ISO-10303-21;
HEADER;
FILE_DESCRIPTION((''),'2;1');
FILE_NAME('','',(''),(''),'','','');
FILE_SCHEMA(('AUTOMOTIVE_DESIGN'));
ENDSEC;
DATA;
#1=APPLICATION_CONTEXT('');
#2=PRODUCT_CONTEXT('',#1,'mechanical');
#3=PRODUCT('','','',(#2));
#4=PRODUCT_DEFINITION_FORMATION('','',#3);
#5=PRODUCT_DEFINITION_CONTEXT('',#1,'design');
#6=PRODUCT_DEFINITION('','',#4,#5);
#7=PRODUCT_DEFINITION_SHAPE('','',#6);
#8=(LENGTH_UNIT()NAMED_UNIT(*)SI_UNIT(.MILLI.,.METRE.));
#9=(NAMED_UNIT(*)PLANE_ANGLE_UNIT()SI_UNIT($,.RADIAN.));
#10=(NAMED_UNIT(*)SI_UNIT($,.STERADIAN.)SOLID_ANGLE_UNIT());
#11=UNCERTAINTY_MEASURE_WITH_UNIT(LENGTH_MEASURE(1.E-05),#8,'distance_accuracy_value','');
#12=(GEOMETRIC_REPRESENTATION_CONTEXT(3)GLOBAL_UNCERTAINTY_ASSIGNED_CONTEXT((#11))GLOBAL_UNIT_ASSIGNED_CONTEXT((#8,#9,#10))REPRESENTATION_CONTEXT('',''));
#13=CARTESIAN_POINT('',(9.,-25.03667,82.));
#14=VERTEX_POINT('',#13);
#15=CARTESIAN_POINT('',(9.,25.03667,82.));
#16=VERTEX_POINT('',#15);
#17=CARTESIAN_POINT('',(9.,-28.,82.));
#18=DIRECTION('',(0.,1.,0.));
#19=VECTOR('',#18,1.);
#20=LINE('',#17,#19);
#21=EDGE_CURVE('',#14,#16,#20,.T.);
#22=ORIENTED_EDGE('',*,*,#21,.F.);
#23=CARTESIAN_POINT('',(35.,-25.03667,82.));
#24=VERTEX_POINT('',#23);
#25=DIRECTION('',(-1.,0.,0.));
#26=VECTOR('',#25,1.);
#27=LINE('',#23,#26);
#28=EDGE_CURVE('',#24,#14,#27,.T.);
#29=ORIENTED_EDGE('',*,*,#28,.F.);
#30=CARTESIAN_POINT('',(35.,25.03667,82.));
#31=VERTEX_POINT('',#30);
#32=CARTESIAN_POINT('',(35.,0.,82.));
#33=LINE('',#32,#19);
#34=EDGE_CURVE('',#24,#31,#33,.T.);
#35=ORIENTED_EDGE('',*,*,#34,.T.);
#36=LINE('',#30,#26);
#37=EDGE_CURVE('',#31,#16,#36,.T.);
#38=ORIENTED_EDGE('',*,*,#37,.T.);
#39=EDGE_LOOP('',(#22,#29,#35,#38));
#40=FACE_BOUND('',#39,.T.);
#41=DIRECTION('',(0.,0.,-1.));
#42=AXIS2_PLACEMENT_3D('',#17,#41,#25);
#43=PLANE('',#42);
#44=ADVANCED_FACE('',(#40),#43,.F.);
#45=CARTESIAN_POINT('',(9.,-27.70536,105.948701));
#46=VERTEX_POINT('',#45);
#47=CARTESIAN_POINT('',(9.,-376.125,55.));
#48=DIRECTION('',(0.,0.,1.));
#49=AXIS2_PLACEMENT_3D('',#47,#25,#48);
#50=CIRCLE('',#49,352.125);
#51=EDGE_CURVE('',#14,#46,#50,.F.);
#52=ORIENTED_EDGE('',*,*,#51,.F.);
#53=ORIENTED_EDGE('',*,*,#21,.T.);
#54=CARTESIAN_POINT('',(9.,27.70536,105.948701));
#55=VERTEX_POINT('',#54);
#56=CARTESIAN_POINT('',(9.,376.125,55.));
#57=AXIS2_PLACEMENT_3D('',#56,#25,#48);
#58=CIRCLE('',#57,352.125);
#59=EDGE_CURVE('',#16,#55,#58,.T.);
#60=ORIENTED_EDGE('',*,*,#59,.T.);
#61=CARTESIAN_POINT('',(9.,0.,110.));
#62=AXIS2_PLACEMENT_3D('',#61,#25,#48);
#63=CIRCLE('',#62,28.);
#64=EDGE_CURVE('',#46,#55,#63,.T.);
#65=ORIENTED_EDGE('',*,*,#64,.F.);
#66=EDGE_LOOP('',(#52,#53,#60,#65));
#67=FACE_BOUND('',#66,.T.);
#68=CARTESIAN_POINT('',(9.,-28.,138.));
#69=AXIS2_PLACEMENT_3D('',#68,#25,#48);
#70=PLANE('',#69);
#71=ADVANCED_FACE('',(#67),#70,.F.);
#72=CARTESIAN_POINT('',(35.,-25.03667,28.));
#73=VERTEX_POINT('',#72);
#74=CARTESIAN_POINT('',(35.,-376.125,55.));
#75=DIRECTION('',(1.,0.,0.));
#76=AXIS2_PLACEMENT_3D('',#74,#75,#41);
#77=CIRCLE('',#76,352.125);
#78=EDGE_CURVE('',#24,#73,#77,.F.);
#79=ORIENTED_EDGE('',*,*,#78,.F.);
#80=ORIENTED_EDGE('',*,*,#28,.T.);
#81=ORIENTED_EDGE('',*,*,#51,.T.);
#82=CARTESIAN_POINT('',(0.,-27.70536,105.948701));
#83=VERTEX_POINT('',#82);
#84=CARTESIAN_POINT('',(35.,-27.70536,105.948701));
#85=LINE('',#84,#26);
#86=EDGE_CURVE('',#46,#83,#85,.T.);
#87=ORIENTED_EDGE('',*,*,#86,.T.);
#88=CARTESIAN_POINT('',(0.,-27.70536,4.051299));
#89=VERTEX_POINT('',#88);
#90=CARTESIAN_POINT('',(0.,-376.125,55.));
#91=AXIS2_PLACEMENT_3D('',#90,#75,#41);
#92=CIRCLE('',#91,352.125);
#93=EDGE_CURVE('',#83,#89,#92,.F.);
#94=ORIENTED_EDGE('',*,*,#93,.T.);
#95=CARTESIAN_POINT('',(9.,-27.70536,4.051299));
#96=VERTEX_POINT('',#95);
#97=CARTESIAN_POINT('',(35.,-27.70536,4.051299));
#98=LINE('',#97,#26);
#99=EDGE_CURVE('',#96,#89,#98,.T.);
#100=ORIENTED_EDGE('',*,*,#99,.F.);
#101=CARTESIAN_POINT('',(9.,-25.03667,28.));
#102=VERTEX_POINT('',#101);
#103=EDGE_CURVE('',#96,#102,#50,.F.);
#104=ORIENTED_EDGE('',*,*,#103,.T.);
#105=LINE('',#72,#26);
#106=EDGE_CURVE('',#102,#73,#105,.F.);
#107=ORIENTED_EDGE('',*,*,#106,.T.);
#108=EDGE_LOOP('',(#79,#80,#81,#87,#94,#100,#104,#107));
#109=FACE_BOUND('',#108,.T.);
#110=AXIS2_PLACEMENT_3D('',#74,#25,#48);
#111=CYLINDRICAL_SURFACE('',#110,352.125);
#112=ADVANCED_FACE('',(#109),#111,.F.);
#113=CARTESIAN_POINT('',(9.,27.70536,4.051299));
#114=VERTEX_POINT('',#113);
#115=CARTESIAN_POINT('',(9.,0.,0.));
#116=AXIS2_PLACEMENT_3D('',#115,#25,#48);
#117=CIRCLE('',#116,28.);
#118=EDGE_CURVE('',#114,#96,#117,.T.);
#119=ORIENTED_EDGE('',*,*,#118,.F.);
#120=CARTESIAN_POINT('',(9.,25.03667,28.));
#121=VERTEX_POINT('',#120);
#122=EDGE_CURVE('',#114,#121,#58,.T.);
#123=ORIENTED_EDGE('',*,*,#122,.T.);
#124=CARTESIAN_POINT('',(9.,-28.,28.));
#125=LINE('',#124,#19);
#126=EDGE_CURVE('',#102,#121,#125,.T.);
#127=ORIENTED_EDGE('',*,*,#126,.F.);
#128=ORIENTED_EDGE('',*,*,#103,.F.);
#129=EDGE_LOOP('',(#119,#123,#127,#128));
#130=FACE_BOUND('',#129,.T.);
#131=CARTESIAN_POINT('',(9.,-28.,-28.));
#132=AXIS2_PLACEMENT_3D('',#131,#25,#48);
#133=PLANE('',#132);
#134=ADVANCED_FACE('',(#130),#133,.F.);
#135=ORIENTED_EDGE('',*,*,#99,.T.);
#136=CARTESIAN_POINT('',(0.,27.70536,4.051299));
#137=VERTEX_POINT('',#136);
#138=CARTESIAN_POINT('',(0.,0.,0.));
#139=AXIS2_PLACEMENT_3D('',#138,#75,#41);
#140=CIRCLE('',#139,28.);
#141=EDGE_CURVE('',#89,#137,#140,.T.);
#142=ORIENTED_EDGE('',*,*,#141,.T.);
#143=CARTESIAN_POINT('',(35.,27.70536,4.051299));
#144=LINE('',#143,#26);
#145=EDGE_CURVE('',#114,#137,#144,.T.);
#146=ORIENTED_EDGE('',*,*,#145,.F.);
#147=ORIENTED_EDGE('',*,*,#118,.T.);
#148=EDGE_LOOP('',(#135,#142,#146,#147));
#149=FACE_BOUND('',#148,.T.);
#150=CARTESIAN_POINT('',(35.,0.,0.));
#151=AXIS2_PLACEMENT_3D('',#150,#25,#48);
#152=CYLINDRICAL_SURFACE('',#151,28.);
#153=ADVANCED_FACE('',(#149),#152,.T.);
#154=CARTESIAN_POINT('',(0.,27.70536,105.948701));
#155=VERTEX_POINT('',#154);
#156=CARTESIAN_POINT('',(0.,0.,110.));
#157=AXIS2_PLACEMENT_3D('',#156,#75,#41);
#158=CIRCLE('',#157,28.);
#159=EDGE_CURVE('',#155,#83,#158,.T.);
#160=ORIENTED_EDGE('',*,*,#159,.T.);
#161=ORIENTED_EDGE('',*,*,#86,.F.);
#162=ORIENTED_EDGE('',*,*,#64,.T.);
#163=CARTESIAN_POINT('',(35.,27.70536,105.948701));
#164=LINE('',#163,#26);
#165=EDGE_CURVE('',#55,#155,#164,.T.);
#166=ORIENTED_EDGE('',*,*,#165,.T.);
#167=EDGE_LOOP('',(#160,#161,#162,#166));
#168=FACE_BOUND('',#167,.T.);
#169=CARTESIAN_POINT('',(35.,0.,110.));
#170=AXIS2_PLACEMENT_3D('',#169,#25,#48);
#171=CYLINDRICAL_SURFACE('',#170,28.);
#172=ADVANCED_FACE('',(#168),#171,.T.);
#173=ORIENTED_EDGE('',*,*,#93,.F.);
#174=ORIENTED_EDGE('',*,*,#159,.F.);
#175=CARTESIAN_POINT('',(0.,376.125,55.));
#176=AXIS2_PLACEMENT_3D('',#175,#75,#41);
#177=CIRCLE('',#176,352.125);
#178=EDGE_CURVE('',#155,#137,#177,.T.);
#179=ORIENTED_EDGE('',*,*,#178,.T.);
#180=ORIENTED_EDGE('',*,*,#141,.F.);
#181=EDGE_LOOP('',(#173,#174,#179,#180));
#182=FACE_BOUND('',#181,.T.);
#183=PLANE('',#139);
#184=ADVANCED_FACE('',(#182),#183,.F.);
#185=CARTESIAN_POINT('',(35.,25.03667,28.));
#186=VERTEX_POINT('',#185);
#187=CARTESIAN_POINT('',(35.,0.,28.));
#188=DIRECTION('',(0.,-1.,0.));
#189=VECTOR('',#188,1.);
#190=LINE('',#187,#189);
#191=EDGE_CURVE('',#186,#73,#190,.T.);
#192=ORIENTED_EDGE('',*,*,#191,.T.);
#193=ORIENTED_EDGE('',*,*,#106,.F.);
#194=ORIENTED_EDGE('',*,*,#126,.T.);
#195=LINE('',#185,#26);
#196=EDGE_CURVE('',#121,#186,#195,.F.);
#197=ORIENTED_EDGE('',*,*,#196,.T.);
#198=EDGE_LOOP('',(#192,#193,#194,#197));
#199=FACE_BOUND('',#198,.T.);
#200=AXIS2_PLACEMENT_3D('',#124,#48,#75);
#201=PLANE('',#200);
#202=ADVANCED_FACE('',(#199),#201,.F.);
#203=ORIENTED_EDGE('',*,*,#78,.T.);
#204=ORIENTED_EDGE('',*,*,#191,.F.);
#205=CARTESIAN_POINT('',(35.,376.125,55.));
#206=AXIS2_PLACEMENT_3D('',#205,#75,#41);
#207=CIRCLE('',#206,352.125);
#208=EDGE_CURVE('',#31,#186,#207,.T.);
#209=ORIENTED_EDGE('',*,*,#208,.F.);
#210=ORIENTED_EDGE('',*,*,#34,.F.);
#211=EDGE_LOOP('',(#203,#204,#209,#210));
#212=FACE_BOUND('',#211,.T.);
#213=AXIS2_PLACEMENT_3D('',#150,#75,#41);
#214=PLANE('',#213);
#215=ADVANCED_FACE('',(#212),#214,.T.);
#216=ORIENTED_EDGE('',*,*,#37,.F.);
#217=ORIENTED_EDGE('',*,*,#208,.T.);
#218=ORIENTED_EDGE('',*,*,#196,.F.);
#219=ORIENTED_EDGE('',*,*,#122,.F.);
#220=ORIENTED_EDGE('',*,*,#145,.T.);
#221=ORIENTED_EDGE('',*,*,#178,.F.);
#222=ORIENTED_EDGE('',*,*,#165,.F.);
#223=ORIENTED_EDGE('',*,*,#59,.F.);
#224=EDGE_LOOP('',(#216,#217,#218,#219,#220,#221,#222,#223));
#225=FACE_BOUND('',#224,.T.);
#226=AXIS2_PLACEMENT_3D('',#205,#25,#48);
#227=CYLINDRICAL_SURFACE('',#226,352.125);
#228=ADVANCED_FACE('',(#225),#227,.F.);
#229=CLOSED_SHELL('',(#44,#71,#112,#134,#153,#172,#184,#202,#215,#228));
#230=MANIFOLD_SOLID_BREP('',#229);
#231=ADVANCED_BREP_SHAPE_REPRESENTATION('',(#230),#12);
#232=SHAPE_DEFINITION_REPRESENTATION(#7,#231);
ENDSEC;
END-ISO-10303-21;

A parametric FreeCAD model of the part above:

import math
import FreeCAD as App
import Part
import Sketcher
from FreeCAD import Vector
Q = App.Units.Quantity

doc = App.newDocument("Part")
params = doc.addObject("Spreadsheet::Sheet", "Params")
for row, (alias, value) in enumerate([
    ("sketch1_radius", "28 mm"),
    ("pad1_length", "35 mm"),
    ("sketch2_width", "52 mm"),
    ("sketch2_height", "56 mm"),
], start=1):
    params.set(f"A{row}", alias)
    params.set(f"B{row}", "=" + value)
    params.setAlias(f"B{row}", alias)

body = doc.addObject("PartDesign::Body", "Body")

# Sketch on YZ plane
sketch1 = body.newObject("Sketcher::SketchObject", "Sketch")
sketch1.AttachmentSupport = (doc.getObject("YZ_Plane"), [""])
sketch1.MapMode = "FlatFace"
sketch1.addGeometry(Part.ArcOfCircle(Part.Circle(Vector(0, 110, 0), Vector(0, 0, 1), 28), math.radians(-8.319285), math.radians(90)), False)
sketch1.addGeometry(Part.ArcOfCircle(Part.Circle(Vector(0, 110, 0), Vector(0, 0, 1), 28), math.radians(90), math.radians(188.319285)), False)
sketch1.addGeometry(Part.ArcOfCircle(Part.Circle(Vector(-376.125, 55, 0), Vector(0, 0, 1), 352.125), math.radians(-8.319285), math.radians(8.319285)), False)
sketch1.addGeometry(Part.ArcOfCircle(Part.Circle(Vector(0, 0, 0), Vector(0, 0, 1), 28), math.radians(171.680715), math.radians(270)), False)
sketch1.addGeometry(Part.ArcOfCircle(Part.Circle(Vector(0, 0, 0), Vector(0, 0, 1), 28), math.radians(-90), math.radians(8.319285)), False)
sketch1.addGeometry(Part.ArcOfCircle(Part.Circle(Vector(376.125, 55, 0), Vector(0, 0, 1), 352.125), math.radians(171.680715), math.radians(188.319285)), False)
sketch1.addConstraint(Sketcher.Constraint("Tangent", 0, 2, 1, 1))
sketch1.addConstraint(Sketcher.Constraint("Tangent", 1, 2, 2, 2))
sketch1.addConstraint(Sketcher.Constraint("Tangent", 2, 1, 3, 1))
sketch1.addConstraint(Sketcher.Constraint("Tangent", 3, 2, 4, 1))
sketch1.addConstraint(Sketcher.Constraint("Tangent", 4, 2, 5, 2))
sketch1.addConstraint(Sketcher.Constraint("Tangent", 5, 1, 0, 1))
sketch1.addConstraint(Sketcher.Constraint("Coincident", 3, 3, -1, 1))
sketch1.addConstraint(Sketcher.Constraint("Equal", 0, 1))
sketch1.addConstraint(Sketcher.Constraint("Equal", 1, 3))
sketch1.addConstraint(Sketcher.Constraint("Equal", 3, 4))
sketch1.addConstraint(Sketcher.Constraint("Equal", 2, 5))
sketch1.addConstraint(Sketcher.Constraint("PointOnObject", 0, 3, -2))
sketch1.addConstraint(Sketcher.Constraint("PointOnObject", 0, 2, -2))
sketch1.addConstraint(Sketcher.Constraint("PointOnObject", 3, 2, -2))
sketch1.addConstraint(Sketcher.Constraint("Radius", 0, Q("28 mm")))
sketch1.addConstraint(Sketcher.Constraint("DistanceY", -1, 1, 0, 3, Q("110 mm")))
sketch1.addConstraint(Sketcher.Constraint("Radius", 2, Q("352.125 mm")))
sketch1.setExpression("Constraints[14]", "Params.sketch1_radius")
pad1 = body.newObject("PartDesign::Pad", "Pad")
pad1.Profile = sketch1
pad1.setExpression("Length", "Params.pad1_length")

# Sketch on XZ plane
sketch2 = body.newObject("Sketcher::SketchObject", "Sketch001")
sketch2.AttachmentSupport = (doc.getObject("XZ_Plane"), [""])
sketch2.MapMode = "FlatFace"
sketch2.addGeometry(Part.LineSegment(Vector(9, -28, 0), Vector(9, 28, 0)), False)
sketch2.addGeometry(Part.LineSegment(Vector(9, 28, 0), Vector(61, 28, 0)), False)
sketch2.addGeometry(Part.LineSegment(Vector(61, 28, 0), Vector(61, -28, 0)), False)
sketch2.addGeometry(Part.LineSegment(Vector(61, -28, 0), Vector(9, -28, 0)), False)
sketch2.addGeometry(Part.LineSegment(Vector(9, 82, 0), Vector(9, 138, 0)), False)
sketch2.addGeometry(Part.LineSegment(Vector(9, 138, 0), Vector(61, 138, 0)), False)
sketch2.addGeometry(Part.LineSegment(Vector(61, 138, 0), Vector(61, 82, 0)), False)
sketch2.addGeometry(Part.LineSegment(Vector(61, 82, 0), Vector(9, 82, 0)), False)
sketch2.addConstraint(Sketcher.Constraint("Coincident", 0, 2, 1, 1))
sketch2.addConstraint(Sketcher.Constraint("Coincident", 1, 2, 2, 1))
sketch2.addConstraint(Sketcher.Constraint("Coincident", 2, 2, 3, 1))
sketch2.addConstraint(Sketcher.Constraint("Coincident", 3, 2, 0, 1))
sketch2.addConstraint(Sketcher.Constraint("Coincident", 4, 2, 5, 1))
sketch2.addConstraint(Sketcher.Constraint("Coincident", 5, 2, 6, 1))
sketch2.addConstraint(Sketcher.Constraint("Coincident", 6, 2, 7, 1))
sketch2.addConstraint(Sketcher.Constraint("Coincident", 7, 2, 4, 1))
sketch2.addConstraint(Sketcher.Constraint("Vertical", 0))
sketch2.addConstraint(Sketcher.Constraint("Horizontal", 1))
sketch2.addConstraint(Sketcher.Constraint("Vertical", 2))
sketch2.addConstraint(Sketcher.Constraint("Horizontal", 3))
sketch2.addConstraint(Sketcher.Constraint("Vertical", 4))
sketch2.addConstraint(Sketcher.Constraint("Horizontal", 5))
sketch2.addConstraint(Sketcher.Constraint("Vertical", 6))
sketch2.addConstraint(Sketcher.Constraint("Horizontal", 7))
sketch2.addConstraint(Sketcher.Constraint("Vertical", 3, 2, 4, 2))
sketch2.addConstraint(Sketcher.Constraint("Vertical", 2, 2, 5, 2))
sketch2.addConstraint(Sketcher.Constraint("Equal", 2, 4))
sketch2.addConstraint(Sketcher.Constraint("DistanceX", 1, 1, 1, 2, Q("52 mm")))
sketch2.addConstraint(Sketcher.Constraint("DistanceY", 0, 1, 0, 2, Q("56 mm")))
sketch2.addConstraint(Sketcher.Constraint("DistanceX", -1, 1, 0, 2, Q("9 mm")))
sketch2.addConstraint(Sketcher.Constraint("DistanceY", -1, 1, 0, 2, Q("28 mm")))
sketch2.addConstraint(Sketcher.Constraint("DistanceY", -1, 1, 4, 2, Q("138 mm")))
sketch2.setExpression("Constraints[19]", "Params.sketch2_width")
sketch2.setExpression("Constraints[20]", "Params.sketch2_height")
pocket1 = body.newObject("PartDesign::Pocket", "Pocket")
pocket1.Profile = sketch2
pocket1.Type = "ThroughAll"
pocket1.Midplane = True

doc.recompute()
